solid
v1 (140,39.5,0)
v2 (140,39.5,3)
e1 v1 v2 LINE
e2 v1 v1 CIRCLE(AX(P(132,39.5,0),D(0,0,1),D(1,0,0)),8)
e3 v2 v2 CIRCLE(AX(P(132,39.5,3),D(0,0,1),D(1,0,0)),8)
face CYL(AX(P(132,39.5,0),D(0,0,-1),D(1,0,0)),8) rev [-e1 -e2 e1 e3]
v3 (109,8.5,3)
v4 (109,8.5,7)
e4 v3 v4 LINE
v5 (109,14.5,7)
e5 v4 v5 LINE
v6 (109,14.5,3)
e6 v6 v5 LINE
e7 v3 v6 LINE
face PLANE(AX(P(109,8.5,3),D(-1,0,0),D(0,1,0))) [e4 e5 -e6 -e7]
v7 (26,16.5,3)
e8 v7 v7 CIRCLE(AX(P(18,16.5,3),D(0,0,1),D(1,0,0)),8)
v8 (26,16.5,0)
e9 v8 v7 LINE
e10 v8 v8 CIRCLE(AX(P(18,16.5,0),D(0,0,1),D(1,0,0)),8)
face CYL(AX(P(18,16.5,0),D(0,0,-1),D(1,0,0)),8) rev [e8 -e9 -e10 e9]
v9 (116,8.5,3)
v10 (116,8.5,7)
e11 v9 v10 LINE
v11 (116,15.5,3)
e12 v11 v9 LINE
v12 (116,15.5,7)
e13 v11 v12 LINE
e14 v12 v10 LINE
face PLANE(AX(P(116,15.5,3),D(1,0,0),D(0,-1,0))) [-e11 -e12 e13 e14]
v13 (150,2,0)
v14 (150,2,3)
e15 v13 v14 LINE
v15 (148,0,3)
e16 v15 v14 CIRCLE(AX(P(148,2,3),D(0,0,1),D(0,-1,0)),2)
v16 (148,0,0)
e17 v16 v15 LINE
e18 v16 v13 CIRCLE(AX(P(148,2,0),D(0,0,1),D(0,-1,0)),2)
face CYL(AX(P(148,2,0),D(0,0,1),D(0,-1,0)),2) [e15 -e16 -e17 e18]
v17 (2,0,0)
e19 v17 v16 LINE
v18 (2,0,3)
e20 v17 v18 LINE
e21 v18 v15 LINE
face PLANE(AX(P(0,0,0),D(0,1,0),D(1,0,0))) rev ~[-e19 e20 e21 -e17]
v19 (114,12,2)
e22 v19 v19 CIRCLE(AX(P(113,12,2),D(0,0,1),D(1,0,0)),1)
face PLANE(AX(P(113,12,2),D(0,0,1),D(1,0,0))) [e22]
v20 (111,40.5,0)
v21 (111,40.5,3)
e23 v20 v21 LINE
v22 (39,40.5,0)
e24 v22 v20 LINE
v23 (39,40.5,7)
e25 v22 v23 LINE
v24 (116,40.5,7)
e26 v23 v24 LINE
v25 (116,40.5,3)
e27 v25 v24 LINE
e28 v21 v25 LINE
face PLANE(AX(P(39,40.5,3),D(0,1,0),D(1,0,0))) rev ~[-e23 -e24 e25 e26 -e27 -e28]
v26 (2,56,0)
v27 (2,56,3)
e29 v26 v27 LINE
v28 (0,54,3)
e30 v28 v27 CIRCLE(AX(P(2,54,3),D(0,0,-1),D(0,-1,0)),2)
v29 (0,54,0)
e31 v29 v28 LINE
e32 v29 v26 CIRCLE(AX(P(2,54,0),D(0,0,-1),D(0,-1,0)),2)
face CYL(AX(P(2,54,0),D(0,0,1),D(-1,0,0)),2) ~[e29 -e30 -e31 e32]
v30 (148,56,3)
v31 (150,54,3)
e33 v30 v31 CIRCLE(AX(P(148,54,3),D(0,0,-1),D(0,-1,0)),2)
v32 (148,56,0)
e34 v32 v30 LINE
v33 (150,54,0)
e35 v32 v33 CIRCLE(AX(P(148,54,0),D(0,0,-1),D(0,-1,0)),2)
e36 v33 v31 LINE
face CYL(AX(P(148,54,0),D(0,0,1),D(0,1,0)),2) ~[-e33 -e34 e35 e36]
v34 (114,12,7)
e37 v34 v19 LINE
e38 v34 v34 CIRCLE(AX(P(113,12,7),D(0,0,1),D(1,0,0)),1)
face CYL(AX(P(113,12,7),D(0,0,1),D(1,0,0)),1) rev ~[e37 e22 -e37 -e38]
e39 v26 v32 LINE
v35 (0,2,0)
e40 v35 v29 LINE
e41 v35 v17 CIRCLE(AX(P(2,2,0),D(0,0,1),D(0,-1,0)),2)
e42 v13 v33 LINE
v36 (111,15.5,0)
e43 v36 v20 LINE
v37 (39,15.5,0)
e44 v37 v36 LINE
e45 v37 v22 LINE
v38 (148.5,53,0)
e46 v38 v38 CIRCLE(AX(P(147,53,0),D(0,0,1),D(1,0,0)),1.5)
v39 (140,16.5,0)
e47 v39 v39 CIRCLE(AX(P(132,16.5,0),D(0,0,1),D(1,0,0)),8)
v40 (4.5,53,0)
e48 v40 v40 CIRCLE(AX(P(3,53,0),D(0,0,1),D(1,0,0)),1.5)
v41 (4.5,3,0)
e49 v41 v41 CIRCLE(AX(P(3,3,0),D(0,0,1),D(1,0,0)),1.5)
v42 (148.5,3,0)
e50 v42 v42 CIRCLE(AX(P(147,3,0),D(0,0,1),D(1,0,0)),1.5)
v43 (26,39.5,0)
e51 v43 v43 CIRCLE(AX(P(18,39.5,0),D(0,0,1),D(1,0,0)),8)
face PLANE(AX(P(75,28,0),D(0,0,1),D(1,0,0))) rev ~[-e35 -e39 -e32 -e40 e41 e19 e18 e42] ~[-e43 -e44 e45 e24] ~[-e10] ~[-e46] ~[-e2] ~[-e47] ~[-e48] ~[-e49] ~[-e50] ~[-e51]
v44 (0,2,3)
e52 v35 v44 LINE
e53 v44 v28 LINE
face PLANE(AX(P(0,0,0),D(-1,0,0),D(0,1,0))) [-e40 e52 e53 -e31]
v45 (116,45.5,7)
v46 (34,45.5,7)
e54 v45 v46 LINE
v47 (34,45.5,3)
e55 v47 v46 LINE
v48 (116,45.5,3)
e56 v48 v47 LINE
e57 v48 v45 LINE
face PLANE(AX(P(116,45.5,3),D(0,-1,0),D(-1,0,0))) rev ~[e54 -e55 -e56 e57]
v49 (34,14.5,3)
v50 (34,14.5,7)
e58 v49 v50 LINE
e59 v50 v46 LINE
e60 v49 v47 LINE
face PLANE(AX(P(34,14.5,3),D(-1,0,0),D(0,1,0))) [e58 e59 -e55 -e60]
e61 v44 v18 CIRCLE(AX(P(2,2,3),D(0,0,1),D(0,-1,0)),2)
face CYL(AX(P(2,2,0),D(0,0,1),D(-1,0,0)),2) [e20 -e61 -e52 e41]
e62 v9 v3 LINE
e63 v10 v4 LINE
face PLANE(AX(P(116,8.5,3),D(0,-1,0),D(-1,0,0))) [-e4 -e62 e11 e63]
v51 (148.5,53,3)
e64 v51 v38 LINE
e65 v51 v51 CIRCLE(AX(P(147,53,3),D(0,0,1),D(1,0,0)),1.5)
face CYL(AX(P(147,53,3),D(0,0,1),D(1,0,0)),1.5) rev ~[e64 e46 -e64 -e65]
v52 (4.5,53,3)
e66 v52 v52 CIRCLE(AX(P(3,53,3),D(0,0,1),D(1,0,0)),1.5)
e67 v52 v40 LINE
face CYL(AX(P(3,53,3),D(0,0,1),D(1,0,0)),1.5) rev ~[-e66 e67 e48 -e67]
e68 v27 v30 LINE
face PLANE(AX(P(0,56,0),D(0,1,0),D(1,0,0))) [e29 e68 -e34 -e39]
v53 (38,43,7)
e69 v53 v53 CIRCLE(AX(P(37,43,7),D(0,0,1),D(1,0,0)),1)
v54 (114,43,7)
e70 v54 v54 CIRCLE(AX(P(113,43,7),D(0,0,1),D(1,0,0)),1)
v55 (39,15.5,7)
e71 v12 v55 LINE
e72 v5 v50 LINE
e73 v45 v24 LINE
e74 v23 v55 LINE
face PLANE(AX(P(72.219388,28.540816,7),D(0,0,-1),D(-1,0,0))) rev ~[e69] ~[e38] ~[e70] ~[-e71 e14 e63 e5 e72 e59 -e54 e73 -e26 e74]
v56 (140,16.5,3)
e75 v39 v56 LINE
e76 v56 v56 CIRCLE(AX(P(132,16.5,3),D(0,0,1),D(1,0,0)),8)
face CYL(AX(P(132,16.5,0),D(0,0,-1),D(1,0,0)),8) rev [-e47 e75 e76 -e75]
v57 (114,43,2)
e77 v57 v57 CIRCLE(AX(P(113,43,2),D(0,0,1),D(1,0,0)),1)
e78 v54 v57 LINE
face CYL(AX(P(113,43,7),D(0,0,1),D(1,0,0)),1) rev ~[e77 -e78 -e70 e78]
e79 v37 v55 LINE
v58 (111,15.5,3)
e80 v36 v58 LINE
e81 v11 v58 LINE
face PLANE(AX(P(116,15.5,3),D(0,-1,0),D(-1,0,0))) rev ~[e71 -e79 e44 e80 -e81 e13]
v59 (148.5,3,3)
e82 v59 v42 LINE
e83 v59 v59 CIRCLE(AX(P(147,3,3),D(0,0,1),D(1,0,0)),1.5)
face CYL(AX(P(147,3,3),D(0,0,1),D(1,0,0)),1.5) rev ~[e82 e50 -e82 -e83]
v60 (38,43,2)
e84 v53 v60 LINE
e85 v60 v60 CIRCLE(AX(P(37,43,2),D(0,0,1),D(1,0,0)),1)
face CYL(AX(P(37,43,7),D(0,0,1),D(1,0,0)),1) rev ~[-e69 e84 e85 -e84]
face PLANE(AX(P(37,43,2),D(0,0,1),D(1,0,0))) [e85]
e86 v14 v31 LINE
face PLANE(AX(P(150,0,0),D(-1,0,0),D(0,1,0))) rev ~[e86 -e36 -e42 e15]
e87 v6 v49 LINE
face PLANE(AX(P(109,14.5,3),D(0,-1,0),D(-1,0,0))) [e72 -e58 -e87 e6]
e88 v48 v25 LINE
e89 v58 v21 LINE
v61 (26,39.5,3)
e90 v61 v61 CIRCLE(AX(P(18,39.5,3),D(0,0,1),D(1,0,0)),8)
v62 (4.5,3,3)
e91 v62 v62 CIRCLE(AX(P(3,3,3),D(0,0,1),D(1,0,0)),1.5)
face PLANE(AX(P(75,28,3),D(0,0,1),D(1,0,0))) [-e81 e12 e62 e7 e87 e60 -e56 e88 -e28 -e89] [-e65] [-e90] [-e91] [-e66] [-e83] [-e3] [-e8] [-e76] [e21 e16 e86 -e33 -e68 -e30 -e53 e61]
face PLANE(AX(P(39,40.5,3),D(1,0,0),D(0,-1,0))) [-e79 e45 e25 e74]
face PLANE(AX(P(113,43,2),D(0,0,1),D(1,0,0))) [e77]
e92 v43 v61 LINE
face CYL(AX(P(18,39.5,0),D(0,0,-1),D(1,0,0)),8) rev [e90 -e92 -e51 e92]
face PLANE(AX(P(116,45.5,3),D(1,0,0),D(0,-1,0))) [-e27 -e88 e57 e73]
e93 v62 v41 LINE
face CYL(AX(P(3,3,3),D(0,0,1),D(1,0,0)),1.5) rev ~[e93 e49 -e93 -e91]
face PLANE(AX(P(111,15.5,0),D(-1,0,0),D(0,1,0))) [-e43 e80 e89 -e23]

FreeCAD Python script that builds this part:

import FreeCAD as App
import Part
import Sketcher


def edges_at(feature, points):
    """Names of the edges that pass closest to the given points."""
    edges = feature.Shape.Edges
    near = lambda p: min(range(len(edges)), key=lambda i: edges[i].distToShape(Part.Vertex(*p))[0])
    return sorted({f"Edge{near(p) + 1}" for p in points})

doc = App.newDocument("Part")
body = doc.addObject("PartDesign::Body", "Body")

sketch1 = body.newObject("Sketcher::SketchObject", "Sketch")
sketch1.AttachmentSupport = (doc.getObject("XY_Plane"), [""])
sketch1.MapMode = "FlatFace"
sketch1.addGeometry([
    Part.LineSegment(App.Vector(0, 56, 0), App.Vector(0, 0, 0)),
    Part.LineSegment(App.Vector(0, 0, 0), App.Vector(150, 0, 0)),
    Part.LineSegment(App.Vector(150, 0, 0), App.Vector(150, 56, 0)),
    Part.LineSegment(App.Vector(150, 56, 0), App.Vector(0, 56, 0)),
    Part.Circle(App.Vector(18, 16.5, 0), App.Vector(0, 0, 1), 8),
    Part.Circle(App.Vector(132, 16.5, 0), App.Vector(0, 0, 1), 8),
    Part.Circle(App.Vector(18, 39.5, 0), App.Vector(0, 0, 1), 8),
    Part.LineSegment(App.Vector(111, 15.5, 0), App.Vector(39, 15.5, 0)),
    Part.LineSegment(App.Vector(39, 15.5, 0), App.Vector(39, 40.5, 0)),
    Part.LineSegment(App.Vector(39, 40.5, 0), App.Vector(111, 40.5, 0)),
    Part.LineSegment(App.Vector(111, 40.5, 0), App.Vector(111, 15.5, 0)),
    Part.Circle(App.Vector(132, 39.5, 0), App.Vector(0, 0, 1), 8),
], False)
sketch1.addConstraint([
    Sketcher.Constraint("Coincident", 0, 2, 1, 1),
    Sketcher.Constraint("Coincident", 1, 2, 2, 1),
    Sketcher.Constraint("Coincident", 2, 2, 3, 1),
    Sketcher.Constraint("Coincident", 3, 2, 0, 1),
    Sketcher.Constraint("Coincident", 7, 2, 8, 1),
    Sketcher.Constraint("Coincident", 8, 2, 9, 1),
    Sketcher.Constraint("Coincident", 9, 2, 10, 1),
    Sketcher.Constraint("Coincident", 10, 2, 7, 1),
    Sketcher.Constraint("Vertical", 0),
    Sketcher.Constraint("Horizontal", 1),
    Sketcher.Constraint("Vertical", 2),
    Sketcher.Constraint("Horizontal", 3),
    Sketcher.Constraint("Horizontal", 7),
    Sketcher.Constraint("Vertical", 8),
    Sketcher.Constraint("Horizontal", 9),
    Sketcher.Constraint("Vertical", 10),
    Sketcher.Constraint("Coincident", 0, 2, -1, 1),
    Sketcher.Constraint("Equal", 4, 5),
    Sketcher.Constraint("Equal", 5, 6),
    Sketcher.Constraint("Equal", 6, 11),
    Sketcher.Constraint("Horizontal", 4, 3, 5, 3),
    Sketcher.Constraint("Horizontal", 6, 3, 11, 3),
    Sketcher.Constraint("Vertical", 4, 3, 6, 3),
    Sketcher.Constraint("Vertical", 5, 3, 11, 3),
    Sketcher.Constraint("Diameter", 4, 16.0),
    Sketcher.Constraint("DistanceX", 1, 1, 1, 2, 150.0),
    Sketcher.Constraint("DistanceX", 7, 2, 7, 1, 72.0),
    Sketcher.Constraint("DistanceY", 0, 2, 0, 1, 56.0),
    Sketcher.Constraint("DistanceY", 8, 1, 8, 2, 25.0),
    Sketcher.Constraint("DistanceX", -1, 1, 4, 3, 18.0),
    Sketcher.Constraint("DistanceX", -1, 1, 5, 3, 132.0),
    Sketcher.Constraint("DistanceX", -1, 1, 7, 2, 39.0),
    Sketcher.Constraint("DistanceY", 4, 3, 6, 3, 23.0),
    Sketcher.Constraint("DistanceY", 7, 2, 4, 3, 1.0),
    Sketcher.Constraint("DistanceY", -1, 1, 4, 3, 16.5),
])
pad1 = body.newObject("PartDesign::Pad", "Pad")
pad1.Profile = sketch1
pad1.Length = 3

sketch2 = body.newObject("Sketcher::SketchObject", "Sketch001")
sketch2.AttachmentSupport = (doc.getObject("XY_Plane"), [""])
sketch2.MapMode = "FlatFace"
sketch2.AttachmentOffset = App.Placement(App.Vector(0, 0, 3), App.Rotation())
sketch2.addGeometry([
    Part.LineSegment(App.Vector(116, 15.5, 0), App.Vector(39, 15.5, 0)),
    Part.LineSegment(App.Vector(39, 15.5, 0), App.Vector(39, 40.5, 0)),
    Part.LineSegment(App.Vector(39, 40.5, 0), App.Vector(116, 40.5, 0)),
    Part.LineSegment(App.Vector(116, 40.5, 0), App.Vector(116, 45.5, 0)),
    Part.LineSegment(App.Vector(116, 45.5, 0), App.Vector(34, 45.5, 0)),
    Part.LineSegment(App.Vector(34, 45.5, 0), App.Vector(34, 14.5, 0)),
    Part.LineSegment(App.Vector(34, 14.5, 0), App.Vector(109, 14.5, 0)),
    Part.LineSegment(App.Vector(109, 14.5, 0), App.Vector(109, 8.5, 0)),
    Part.LineSegment(App.Vector(109, 8.5, 0), App.Vector(116, 8.5, 0)),
    Part.LineSegment(App.Vector(116, 8.5, 0), App.Vector(116, 15.5, 0)),
], False)
sketch2.addConstraint([
    Sketcher.Constraint("Coincident", 0, 2, 1, 1),
    Sketcher.Constraint("Coincident", 1, 2, 2, 1),
    Sketcher.Constraint("Coincident", 2, 2, 3, 1),
    Sketcher.Constraint("Coincident", 3, 2, 4, 1),
    Sketcher.Constraint("Coincident", 4, 2, 5, 1),
    Sketcher.Constraint("Coincident", 5, 2, 6, 1),
    Sketcher.Constraint("Coincident", 6, 2, 7, 1),
    Sketcher.Constraint("Coincident", 7, 2, 8, 1),
    Sketcher.Constraint("Coincident", 8, 2, 9, 1),
    Sketcher.Constraint("Coincident", 9, 2, 0, 1),
    Sketcher.Constraint("Horizontal", 0),
    Sketcher.Constraint("Vertical", 1),
    Sketcher.Constraint("Horizontal", 2),
    Sketcher.Constraint("Vertical", 3),
    Sketcher.Constraint("Horizontal", 4),
    Sketcher.Constraint("Vertical", 5),
    Sketcher.Constraint("Horizontal", 6),
    Sketcher.Constraint("Vertical", 7),
    Sketcher.Constraint("Horizontal", 8),
    Sketcher.Constraint("Vertical", 9),
    Sketcher.Constraint("Vertical", 3, 2, 8, 2),
    Sketcher.Constraint("Equal", 8, 9),
    Sketcher.Constraint("DistanceX", 0, 2, 0, 1, 77.0),
    Sketcher.Constraint("DistanceX", 4, 2, 4, 1, 82.0),
    Sketcher.Constraint("DistanceX", 6, 1, 6, 2, 75.0),
    Sketcher.Constraint("DistanceY", 1, 1, 1, 2, 25.0),
    Sketcher.Constraint("DistanceY", 3, 1, 3, 2, 5.0),
    Sketcher.Constraint("DistanceY", 5, 2, 5, 1, 31.0),
    Sketcher.Constraint("DistanceX", -1, 1, 0, 2, 39.0),
    Sketcher.Constraint("DistanceY", -1, 1, 0, 2, 15.5),
])
pad2 = body.newObject("PartDesign::Pad", "Pad001")
pad2.Profile = sketch2
pad2.Length = 4

sketch3 = body.newObject("Sketcher::SketchObject", "Sketch002")
sketch3.AttachmentSupport = (doc.getObject("XY_Plane"), [""])
sketch3.MapMode = "FlatFace"
sketch3.AttachmentOffset = App.Placement(App.Vector(0, 0, 3), App.Rotation())
sketch3.addGeometry([
    Part.Circle(App.Vector(3, 53, 0), App.Vector(0, 0, 1), 1.5),
    Part.Circle(App.Vector(147, 53, 0), App.Vector(0, 0, 1), 1.5),
    Part.Circle(App.Vector(3, 3, 0), App.Vector(0, 0, 1), 1.5),
    Part.Circle(App.Vector(147, 3, 0), App.Vector(0, 0, 1), 1.5),
], False)
sketch3.addConstraint([
    Sketcher.Constraint("Equal", 0, 1),
    Sketcher.Constraint("Equal", 1, 2),
    Sketcher.Constraint("Equal", 2, 3),
    Sketcher.Constraint("Horizontal", 0, 3, 1, 3),
    Sketcher.Constraint("Horizontal", 2, 3, 3, 3),
    Sketcher.Constraint("Vertical", 0, 3, 2, 3),
    Sketcher.Constraint("Vertical", 1, 3, 3, 3),
    Sketcher.Constraint("Diameter", 0, 3.0),
    Sketcher.Constraint("DistanceX", -1, 1, 0, 3, 3.0),
    Sketcher.Constraint("DistanceY", -1, 1, 0, 3, 53.0),
    Sketcher.Constraint("DistanceX", -1, 1, 1, 3, 147.0),
    Sketcher.Constraint("DistanceY", -1, 1, 2, 3, 3.0),
])
pocket1 = body.newObject("PartDesign::Pocket", "Pocket")
pocket1.Profile = sketch3
pocket1.Length = 5

sketch4 = body.newObject("Sketcher::SketchObject", "Sketch003")
sketch4.AttachmentSupport = (doc.getObject("XY_Plane"), [""])
sketch4.MapMode = "FlatFace"
sketch4.AttachmentOffset = App.Placement(App.Vector(0, 0, 7), App.Rotation())
sketch4.addGeometry([
    Part.Circle(App.Vector(37, 43, 0), App.Vector(0, 0, 1), 1),
    Part.Circle(App.Vector(113, 43, 0), App.Vector(0, 0, 1), 1),
    Part.Circle(App.Vector(113, 12, 0), App.Vector(0, 0, 1), 1),
], False)
sketch4.addConstraint([
    Sketcher.Constraint("Equal", 0, 1),
    Sketcher.Constraint("Equal", 1, 2),
    Sketcher.Constraint("Horizontal", 0, 3, 1, 3),
    Sketcher.Constraint("Vertical", 1, 3, 2, 3),
    Sketcher.Constraint("Diameter", 0, 2.0),
    Sketcher.Constraint("DistanceX", -1, 1, 0, 3, 37.0),
    Sketcher.Constraint("DistanceY", -1, 1, 0, 3, 43.0),
    Sketcher.Constraint("DistanceX", -1, 1, 1, 3, 113.0),
    Sketcher.Constraint("DistanceY", -1, 1, 2, 3, 12.0),
])
pocket2 = body.newObject("PartDesign::Pocket", "Pocket001")
pocket2.Profile = sketch4
pocket2.Length = 5
doc.recompute()

fillet = body.newObject("PartDesign::Fillet", "Fillet")
fillet.Base = (pocket2, edges_at(pocket2, [
    (0, 0, 1.5),
    (0, 56, 1.5),
    (150, 0, 1.5),
    (150, 56, 1.5),
]))
fillet.Radius = 2

doc.recompute()
